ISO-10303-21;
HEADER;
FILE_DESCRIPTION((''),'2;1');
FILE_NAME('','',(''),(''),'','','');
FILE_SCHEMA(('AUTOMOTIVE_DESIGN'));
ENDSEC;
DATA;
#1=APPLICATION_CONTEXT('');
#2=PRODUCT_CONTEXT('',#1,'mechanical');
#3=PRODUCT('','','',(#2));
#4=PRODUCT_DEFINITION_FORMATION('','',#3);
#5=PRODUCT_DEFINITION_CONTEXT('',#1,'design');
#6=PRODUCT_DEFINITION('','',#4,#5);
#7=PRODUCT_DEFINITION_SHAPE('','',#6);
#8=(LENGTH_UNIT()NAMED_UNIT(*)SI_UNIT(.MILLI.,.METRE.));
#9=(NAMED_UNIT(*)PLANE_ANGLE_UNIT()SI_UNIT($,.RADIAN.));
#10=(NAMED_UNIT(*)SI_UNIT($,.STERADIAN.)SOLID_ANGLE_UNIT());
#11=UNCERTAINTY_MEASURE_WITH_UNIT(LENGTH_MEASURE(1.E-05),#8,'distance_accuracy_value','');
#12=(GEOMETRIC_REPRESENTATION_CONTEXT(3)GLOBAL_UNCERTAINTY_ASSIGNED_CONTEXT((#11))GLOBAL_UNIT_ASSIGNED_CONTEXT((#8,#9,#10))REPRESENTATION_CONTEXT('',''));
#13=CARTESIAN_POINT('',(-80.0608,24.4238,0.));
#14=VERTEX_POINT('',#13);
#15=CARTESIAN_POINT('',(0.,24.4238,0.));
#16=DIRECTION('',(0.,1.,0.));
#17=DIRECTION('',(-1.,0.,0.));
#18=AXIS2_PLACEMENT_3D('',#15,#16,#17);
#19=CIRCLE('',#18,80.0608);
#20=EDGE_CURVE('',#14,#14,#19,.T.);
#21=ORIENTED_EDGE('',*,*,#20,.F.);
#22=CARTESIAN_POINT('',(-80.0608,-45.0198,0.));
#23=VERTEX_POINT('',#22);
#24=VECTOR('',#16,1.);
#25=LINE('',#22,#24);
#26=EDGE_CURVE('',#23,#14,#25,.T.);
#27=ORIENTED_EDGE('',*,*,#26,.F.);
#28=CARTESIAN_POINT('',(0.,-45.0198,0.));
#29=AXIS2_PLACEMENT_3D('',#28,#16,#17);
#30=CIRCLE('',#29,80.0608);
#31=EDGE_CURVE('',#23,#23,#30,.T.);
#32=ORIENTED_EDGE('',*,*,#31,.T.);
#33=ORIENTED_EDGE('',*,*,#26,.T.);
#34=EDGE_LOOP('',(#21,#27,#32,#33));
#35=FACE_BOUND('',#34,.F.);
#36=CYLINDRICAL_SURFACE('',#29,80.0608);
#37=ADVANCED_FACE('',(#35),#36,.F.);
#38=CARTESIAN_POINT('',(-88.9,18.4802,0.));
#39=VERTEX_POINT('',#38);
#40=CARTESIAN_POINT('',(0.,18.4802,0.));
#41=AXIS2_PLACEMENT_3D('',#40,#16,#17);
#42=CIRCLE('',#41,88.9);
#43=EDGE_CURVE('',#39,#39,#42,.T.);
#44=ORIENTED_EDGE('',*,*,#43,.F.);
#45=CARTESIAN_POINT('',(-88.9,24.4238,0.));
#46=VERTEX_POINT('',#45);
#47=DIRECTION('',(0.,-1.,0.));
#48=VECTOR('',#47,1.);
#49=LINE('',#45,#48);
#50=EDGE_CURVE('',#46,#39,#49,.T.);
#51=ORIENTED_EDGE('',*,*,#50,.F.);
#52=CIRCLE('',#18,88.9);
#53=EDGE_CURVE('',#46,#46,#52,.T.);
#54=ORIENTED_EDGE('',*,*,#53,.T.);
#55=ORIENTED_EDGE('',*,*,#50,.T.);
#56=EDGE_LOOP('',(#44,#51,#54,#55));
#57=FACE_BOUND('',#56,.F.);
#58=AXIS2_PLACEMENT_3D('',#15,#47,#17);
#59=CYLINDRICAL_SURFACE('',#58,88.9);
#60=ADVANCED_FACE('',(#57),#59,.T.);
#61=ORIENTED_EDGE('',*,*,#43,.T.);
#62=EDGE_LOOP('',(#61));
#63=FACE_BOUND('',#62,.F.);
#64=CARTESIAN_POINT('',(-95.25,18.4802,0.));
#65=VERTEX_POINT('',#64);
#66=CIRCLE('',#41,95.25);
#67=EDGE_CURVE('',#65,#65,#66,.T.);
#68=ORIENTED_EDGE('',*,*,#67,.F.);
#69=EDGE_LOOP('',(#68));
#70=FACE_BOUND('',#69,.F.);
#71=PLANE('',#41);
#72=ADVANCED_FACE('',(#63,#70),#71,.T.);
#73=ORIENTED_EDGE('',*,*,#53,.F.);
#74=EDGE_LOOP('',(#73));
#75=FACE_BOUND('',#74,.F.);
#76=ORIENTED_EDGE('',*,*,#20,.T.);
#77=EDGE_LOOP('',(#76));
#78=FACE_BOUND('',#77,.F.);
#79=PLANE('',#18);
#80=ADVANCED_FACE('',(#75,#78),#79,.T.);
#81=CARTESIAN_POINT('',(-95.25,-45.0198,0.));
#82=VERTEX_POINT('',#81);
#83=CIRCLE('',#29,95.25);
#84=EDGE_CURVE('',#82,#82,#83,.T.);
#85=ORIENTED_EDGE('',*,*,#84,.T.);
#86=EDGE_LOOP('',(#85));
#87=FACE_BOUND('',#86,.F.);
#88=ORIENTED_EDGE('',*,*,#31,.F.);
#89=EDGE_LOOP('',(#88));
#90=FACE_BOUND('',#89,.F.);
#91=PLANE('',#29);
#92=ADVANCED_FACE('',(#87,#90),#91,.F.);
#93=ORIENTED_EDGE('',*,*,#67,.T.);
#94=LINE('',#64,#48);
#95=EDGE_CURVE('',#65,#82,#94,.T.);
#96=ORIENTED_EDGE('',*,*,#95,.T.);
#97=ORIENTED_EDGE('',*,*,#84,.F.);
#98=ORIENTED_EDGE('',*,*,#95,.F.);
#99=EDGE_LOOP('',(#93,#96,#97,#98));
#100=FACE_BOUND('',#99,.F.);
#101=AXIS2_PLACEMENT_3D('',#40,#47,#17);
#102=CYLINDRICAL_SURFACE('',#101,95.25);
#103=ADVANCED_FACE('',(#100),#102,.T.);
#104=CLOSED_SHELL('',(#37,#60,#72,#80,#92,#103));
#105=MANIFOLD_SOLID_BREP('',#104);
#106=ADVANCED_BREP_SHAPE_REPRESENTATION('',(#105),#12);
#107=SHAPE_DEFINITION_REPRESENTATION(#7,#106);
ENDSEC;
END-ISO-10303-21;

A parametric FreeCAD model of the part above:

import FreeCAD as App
import Part
import Sketcher

V = App.Vector
Q = App.Units.Quantity


def add_polygon(sketch, points):
    """Adds a closed chain of lines whose ends are joined by coincident constraints."""
    first, n = sketch.GeometryCount, len(points)
    for a, b in zip(points, points[1:] + points[:1]):
        sketch.addGeometry(Part.LineSegment(App.Vector(*a, 0), App.Vector(*b, 0)), False)
    for i in range(n):
        sketch.addConstraint(Sketcher.Constraint("Coincident", first + i, 2, first + (i + 1) % n, 1))

doc = App.newDocument("Part")
params = doc.addObject("Spreadsheet::Sheet", "Params")
for row, (alias, value) in enumerate([
    ("sketch1_height", "2.5 in"),
    ("sketch1_width", "0.25 in"),
    ("sketch1_width2", "0.348 in"),
    ("sketch1_height2", "0.234 in"),
    ("revolution_angle", "360 deg"),
], start=1):
    params.set(f"A{row}", alias)
    params.set(f"B{row}", "=" + value)
    params.setAlias(f"B{row}", alias)

body = doc.addObject("PartDesign::Body", "Body")

# Sketch on XY plane
sketch1 = body.newObject("Sketcher::SketchObject", "Sketch")
sketch1.AttachmentSupport = (doc.getObject("XY_Plane"), [""])
sketch1.MapMode = "FlatFace"
add_polygon(sketch1, [(-80.0608, -45.0198), (-80.0608, 24.4238), (-88.9, 24.4238), (-88.9, 18.4802), (-95.25, 18.4802), (-95.25, -45.0198)])  # lines 0-5
sketch1.addConstraint(Sketcher.Constraint("Vertical", 0))
sketch1.addConstraint(Sketcher.Constraint("Horizontal", 1))
sketch1.addConstraint(Sketcher.Constraint("Vertical", 2))
sketch1.addConstraint(Sketcher.Constraint("Horizontal", 3))
sketch1.addConstraint(Sketcher.Constraint("Vertical", 4))
sketch1.addConstraint(Sketcher.Constraint("Horizontal", 5))
sketch1.addConstraint(Sketcher.Constraint("DistanceY", 4, 2, 4, 1, Q("2.5 in")))
sketch1.addConstraint(Sketcher.Constraint("DistanceX", 3, 2, 3, 1, Q("0.25 in")))
sketch1.addConstraint(Sketcher.Constraint("DistanceX", 1, 2, 1, 1, Q("0.348 in")))
sketch1.addConstraint(Sketcher.Constraint("DistanceY", 2, 2, 2, 1, Q("0.234 in")))
sketch1.addConstraint(Sketcher.Constraint("DistanceX", 3, 2, -1, 1, Q("3.75 in")))
sketch1.addConstraint(Sketcher.Constraint("DistanceY", -1, 1, 0, 2, 24.4238))
sketch1.setExpression("Constraints[12]", "Params.sketch1_height")
sketch1.setExpression("Constraints[13]", "Params.sketch1_width")
sketch1.setExpression("Constraints[14]", "Params.sketch1_width2")
sketch1.setExpression("Constraints[15]", "Params.sketch1_height2")
revolution = body.newObject("PartDesign::Revolution", "Revolution")
revolution.Profile = sketch1
revolution.ReferenceAxis = (sketch1, ["V_Axis"])
revolution.setExpression("Angle", "Params.revolution_angle")

doc.recompute()
